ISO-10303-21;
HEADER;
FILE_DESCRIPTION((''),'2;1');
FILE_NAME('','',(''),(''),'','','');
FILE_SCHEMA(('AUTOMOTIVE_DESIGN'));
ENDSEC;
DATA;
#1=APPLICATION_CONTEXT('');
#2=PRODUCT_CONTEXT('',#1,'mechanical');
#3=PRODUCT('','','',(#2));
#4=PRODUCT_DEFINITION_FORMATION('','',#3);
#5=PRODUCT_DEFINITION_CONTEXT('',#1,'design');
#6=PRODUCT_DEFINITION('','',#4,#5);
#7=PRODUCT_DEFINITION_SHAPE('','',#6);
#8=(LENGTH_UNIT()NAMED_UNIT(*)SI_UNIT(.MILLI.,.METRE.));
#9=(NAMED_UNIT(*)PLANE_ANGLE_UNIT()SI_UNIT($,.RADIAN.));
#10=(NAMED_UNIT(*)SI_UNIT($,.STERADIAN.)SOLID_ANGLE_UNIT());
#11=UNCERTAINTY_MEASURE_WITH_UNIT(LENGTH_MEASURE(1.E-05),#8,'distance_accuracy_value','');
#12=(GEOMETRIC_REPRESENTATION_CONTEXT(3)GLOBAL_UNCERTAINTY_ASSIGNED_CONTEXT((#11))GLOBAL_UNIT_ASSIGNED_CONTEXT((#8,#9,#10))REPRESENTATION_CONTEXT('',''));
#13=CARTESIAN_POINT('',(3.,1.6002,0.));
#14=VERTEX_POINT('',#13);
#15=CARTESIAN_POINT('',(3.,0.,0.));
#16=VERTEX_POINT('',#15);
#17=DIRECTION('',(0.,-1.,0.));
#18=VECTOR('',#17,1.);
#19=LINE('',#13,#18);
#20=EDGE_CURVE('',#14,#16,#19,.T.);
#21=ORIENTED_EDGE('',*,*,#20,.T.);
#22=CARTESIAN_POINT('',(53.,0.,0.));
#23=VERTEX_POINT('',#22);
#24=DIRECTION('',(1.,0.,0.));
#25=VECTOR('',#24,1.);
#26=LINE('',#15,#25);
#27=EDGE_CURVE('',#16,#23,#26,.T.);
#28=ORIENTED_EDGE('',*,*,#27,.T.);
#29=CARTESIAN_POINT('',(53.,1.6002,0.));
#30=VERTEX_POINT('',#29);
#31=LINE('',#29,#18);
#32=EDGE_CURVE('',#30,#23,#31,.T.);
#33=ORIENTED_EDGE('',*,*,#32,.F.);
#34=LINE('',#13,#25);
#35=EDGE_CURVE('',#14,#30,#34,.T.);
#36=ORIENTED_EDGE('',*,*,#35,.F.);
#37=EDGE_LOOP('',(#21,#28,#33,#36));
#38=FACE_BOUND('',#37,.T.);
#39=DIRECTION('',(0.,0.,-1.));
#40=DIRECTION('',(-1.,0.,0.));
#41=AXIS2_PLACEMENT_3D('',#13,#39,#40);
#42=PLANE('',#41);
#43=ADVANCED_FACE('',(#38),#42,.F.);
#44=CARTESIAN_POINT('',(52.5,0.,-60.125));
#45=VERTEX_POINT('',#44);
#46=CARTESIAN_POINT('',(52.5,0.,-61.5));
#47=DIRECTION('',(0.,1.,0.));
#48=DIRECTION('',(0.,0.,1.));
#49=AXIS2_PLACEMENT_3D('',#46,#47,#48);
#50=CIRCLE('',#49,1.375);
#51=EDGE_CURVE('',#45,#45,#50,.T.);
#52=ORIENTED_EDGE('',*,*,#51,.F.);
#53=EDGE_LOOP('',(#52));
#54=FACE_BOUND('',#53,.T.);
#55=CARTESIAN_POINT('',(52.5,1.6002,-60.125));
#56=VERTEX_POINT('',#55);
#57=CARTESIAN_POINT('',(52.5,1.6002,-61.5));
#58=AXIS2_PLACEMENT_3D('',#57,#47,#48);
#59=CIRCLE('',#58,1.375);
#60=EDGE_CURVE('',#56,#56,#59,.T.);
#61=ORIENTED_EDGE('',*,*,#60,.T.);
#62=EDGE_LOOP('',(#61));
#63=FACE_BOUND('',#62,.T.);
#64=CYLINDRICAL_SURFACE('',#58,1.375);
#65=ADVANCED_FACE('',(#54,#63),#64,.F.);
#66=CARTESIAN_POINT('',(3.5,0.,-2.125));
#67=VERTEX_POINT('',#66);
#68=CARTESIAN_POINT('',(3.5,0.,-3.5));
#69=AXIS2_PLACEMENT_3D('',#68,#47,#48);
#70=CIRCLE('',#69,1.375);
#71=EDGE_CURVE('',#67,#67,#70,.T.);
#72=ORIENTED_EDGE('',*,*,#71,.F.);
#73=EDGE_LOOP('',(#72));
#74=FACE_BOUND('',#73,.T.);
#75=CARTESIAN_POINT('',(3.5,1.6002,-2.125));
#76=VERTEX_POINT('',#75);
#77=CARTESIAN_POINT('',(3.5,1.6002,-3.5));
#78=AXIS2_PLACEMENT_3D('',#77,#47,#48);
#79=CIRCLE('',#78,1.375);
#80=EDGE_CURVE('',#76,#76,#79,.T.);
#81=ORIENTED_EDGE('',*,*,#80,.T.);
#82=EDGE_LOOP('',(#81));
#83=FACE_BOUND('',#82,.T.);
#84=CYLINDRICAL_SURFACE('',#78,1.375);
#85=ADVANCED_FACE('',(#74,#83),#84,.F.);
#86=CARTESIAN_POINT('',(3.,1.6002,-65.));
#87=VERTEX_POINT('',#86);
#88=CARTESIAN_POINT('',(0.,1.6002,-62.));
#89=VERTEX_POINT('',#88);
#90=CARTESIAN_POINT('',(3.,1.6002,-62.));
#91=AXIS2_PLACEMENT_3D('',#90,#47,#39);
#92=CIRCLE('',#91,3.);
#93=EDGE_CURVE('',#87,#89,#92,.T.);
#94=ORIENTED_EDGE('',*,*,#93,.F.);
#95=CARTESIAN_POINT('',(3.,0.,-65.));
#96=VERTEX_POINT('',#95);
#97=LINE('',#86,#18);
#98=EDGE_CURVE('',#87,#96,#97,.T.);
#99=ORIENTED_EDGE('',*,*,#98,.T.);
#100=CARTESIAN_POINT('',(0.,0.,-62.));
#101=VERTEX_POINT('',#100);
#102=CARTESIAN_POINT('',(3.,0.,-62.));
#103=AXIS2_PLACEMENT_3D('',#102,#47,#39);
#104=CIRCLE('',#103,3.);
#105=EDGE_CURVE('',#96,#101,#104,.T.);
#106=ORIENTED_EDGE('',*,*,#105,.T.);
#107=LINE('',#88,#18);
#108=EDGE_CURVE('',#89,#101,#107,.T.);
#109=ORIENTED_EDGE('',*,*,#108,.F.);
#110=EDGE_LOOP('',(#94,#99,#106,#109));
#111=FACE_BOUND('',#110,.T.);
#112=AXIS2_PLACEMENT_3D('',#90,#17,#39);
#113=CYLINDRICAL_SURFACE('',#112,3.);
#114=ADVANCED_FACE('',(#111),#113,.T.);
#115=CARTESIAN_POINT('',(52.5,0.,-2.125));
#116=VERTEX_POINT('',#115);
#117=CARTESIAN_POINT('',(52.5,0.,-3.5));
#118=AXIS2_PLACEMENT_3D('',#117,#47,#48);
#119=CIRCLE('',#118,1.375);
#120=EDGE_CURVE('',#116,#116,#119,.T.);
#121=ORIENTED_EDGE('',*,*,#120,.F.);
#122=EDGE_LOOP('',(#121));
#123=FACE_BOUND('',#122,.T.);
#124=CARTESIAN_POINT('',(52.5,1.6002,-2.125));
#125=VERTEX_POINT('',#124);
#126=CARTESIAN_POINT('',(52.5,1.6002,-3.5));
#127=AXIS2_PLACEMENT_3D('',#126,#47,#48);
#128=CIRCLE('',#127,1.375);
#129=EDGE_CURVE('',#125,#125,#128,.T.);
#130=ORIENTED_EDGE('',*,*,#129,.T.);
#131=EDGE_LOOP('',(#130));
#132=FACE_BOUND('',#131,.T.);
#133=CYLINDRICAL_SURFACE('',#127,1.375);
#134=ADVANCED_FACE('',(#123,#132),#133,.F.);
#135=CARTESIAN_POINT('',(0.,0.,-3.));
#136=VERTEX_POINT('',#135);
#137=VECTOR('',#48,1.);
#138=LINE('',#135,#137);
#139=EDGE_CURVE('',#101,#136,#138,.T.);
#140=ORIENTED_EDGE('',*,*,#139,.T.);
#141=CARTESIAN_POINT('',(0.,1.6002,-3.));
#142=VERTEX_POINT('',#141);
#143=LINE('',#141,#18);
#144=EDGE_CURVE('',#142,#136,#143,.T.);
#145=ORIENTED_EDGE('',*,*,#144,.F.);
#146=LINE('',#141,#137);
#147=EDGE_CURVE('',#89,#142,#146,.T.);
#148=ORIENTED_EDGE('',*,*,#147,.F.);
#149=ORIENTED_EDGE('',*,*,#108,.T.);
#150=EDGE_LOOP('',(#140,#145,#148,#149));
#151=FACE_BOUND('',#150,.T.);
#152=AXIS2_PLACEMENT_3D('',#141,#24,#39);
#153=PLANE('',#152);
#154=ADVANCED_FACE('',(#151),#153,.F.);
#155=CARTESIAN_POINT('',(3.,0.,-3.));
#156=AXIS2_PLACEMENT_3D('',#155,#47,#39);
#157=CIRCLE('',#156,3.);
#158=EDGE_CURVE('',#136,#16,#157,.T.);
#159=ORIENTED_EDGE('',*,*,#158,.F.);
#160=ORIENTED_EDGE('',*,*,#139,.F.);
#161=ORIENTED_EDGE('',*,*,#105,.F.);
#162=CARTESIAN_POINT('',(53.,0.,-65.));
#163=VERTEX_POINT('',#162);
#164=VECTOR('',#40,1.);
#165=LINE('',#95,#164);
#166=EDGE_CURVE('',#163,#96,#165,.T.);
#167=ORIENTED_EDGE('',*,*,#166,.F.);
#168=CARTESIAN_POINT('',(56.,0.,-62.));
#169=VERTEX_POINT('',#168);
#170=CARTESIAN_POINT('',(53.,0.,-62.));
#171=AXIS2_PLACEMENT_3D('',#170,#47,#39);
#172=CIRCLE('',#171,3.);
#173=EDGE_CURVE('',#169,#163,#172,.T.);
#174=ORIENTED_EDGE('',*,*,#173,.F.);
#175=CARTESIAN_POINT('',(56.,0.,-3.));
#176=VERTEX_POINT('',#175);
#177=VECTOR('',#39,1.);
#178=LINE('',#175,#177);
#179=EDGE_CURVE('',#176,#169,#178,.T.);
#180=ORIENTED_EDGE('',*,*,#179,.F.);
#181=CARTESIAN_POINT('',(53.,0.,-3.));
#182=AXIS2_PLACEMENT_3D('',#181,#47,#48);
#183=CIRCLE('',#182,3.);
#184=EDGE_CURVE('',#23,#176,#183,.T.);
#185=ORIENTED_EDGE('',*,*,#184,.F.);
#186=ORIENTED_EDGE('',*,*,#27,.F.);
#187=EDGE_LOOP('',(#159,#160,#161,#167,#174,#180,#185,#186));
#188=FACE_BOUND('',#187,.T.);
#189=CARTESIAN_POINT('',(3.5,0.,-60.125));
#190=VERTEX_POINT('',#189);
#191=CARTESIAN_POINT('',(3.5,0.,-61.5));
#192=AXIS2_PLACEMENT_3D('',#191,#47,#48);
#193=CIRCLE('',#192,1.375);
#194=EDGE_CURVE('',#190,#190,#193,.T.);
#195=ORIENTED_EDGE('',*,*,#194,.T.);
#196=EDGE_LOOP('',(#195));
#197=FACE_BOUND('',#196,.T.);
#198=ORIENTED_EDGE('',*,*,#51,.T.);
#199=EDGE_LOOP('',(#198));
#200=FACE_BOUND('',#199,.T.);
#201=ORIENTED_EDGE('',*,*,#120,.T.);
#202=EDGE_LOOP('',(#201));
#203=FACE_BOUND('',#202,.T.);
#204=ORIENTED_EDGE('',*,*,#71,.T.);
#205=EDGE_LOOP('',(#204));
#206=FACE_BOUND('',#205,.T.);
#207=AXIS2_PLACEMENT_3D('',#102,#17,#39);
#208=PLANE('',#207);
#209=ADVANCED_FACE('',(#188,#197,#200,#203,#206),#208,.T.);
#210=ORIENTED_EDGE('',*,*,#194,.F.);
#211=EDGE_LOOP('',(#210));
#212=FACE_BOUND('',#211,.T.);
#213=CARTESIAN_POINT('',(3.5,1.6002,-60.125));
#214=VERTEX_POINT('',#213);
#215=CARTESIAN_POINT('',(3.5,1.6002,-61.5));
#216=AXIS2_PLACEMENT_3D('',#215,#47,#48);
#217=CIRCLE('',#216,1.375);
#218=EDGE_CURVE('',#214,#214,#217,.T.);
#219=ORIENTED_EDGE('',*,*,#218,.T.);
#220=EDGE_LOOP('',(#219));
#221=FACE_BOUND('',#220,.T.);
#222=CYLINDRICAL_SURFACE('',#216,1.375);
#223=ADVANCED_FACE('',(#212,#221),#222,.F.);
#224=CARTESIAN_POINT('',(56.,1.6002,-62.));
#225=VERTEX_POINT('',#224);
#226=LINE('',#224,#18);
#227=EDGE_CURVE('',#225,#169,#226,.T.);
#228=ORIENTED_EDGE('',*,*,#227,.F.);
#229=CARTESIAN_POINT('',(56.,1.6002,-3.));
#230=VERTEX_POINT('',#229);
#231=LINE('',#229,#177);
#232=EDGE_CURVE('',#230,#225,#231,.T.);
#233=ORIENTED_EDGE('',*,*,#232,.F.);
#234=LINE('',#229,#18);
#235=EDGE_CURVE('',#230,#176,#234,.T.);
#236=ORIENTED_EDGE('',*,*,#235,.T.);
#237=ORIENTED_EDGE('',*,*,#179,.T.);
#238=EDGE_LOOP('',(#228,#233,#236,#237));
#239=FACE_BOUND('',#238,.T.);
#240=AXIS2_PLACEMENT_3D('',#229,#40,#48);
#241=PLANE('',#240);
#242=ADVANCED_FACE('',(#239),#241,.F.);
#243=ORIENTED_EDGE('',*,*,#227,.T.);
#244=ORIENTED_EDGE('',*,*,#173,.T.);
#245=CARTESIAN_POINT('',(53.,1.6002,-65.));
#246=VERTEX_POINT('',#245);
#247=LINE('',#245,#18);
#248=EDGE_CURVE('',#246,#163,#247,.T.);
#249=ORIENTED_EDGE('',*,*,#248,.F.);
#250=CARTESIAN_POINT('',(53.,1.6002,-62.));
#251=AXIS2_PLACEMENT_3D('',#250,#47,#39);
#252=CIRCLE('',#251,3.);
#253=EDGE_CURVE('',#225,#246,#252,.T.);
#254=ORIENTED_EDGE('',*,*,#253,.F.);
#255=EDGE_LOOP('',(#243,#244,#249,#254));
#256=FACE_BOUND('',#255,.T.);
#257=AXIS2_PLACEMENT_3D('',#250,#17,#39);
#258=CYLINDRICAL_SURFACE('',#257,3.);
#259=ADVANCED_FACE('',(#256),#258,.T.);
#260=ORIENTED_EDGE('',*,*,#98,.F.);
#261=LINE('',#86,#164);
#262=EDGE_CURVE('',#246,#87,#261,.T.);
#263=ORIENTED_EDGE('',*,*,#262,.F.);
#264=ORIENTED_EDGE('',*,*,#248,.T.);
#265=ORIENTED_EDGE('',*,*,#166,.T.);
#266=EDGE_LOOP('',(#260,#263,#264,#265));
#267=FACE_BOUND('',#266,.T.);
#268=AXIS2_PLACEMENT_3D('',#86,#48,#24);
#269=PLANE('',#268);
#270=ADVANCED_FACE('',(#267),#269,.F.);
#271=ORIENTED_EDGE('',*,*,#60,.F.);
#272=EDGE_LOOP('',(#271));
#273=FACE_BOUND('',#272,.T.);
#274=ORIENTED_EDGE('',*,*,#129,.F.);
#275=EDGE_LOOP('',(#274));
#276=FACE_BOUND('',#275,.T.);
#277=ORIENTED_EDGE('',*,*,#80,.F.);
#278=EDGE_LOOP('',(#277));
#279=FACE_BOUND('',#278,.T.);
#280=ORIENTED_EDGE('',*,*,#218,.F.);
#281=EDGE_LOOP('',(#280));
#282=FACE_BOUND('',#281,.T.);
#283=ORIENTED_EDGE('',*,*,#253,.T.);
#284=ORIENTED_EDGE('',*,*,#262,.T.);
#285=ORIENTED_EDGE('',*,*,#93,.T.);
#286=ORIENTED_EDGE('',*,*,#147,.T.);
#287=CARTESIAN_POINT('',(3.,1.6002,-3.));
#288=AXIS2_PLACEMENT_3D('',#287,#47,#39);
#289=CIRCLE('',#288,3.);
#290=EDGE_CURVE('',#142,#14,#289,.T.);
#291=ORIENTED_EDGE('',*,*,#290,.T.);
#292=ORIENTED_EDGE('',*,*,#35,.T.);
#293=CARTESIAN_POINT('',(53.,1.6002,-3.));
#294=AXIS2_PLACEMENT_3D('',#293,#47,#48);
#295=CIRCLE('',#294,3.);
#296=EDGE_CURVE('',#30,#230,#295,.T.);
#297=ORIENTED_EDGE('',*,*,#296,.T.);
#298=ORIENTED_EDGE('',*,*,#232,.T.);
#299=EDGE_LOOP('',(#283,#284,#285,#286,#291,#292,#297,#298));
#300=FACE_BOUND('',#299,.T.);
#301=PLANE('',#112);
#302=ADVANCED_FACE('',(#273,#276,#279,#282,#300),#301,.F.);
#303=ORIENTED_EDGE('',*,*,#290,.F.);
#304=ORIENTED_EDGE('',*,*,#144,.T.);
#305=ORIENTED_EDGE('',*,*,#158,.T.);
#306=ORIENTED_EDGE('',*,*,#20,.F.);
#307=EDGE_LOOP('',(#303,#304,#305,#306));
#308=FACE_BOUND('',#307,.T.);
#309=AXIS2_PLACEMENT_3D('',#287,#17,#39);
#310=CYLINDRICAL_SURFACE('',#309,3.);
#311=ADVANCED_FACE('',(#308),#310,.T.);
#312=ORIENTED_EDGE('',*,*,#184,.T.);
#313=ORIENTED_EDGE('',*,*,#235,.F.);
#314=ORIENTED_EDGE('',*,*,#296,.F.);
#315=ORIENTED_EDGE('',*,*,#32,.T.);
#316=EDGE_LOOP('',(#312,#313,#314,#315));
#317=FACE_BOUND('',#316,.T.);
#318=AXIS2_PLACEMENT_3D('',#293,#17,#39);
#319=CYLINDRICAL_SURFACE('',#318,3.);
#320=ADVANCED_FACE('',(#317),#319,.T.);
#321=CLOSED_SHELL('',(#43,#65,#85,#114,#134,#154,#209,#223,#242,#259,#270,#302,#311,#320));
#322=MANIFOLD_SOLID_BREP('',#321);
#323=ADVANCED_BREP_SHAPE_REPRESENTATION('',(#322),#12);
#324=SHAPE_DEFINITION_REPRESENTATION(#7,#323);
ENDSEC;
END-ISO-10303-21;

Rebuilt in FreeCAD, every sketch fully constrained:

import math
import FreeCAD as App
import Part
import Sketcher

V = App.Vector

doc = App.newDocument("Part")
params = doc.addObject("Spreadsheet::Sheet", "Params")
for row, (alias, value) in enumerate([
    ("sketch1_radius", "3 mm"),
    ("sketch1_width", "50 mm"),
    ("sketch1_height", "59 mm"),
    ("pad1_length", "1.6002 mm"),
    ("sketch2_diameter", "2.75 mm"),
    ("hole_diameter", "2.75 mm"),
], start=1):
    params.set(f"A{row}", alias)
    params.set(f"B{row}", "=" + value)
    params.setAlias(f"B{row}", alias)

body = doc.addObject("PartDesign::Body", "Body")

sketch1 = doc.addObject("Sketcher::SketchObject", "Sketch")
body.addObject(sketch1)
sketch1.AttachmentSupport = (doc.XZ_Plane, [""])
sketch1.MapMode = "FlatFace"
sketch1.addGeometry([
    Part.LineSegment(V(3, 0, 0), V(53, 0, 0)),
    Part.ArcOfCircle(Part.Circle(V(53, -3, 0), V(0, 0, 1), 3), math.radians(0), math.radians(90)),
    Part.LineSegment(V(56, -3, 0), V(56, -62, 0)),
    Part.ArcOfCircle(Part.Circle(V(53, -62, 0), V(0, 0, 1), 3), math.radians(-90), math.radians(0)),
    Part.LineSegment(V(53, -65, 0), V(3, -65, 0)),
    Part.ArcOfCircle(Part.Circle(V(3, -62, 0), V(0, 0, 1), 3), math.radians(180), math.radians(270)),
    Part.LineSegment(V(0, -62, 0), V(0, -3, 0)),
    Part.ArcOfCircle(Part.Circle(V(3, -3, 0), V(0, 0, 1), 3), math.radians(90), math.radians(180)),
], False)
sketch1.addConstraint([
    Sketcher.Constraint("Tangent", 0, 2, 1, 2),
    Sketcher.Constraint("Tangent", 1, 1, 2, 1),
    Sketcher.Constraint("Tangent", 2, 2, 3, 2),
    Sketcher.Constraint("Tangent", 3, 1, 4, 1),
    Sketcher.Constraint("Tangent", 4, 2, 5, 2),
    Sketcher.Constraint("Tangent", 5, 1, 6, 1),
    Sketcher.Constraint("Tangent", 6, 2, 7, 2),
    Sketcher.Constraint("Tangent", 7, 1, 0, 1),
    Sketcher.Constraint("Horizontal", 0),
    Sketcher.Constraint("Vertical", 2),
    Sketcher.Constraint("Horizontal", 4),
    Sketcher.Constraint("Vertical", 6),
    Sketcher.Constraint("Equal", 1, 3),
    Sketcher.Constraint("Equal", 3, 5),
    Sketcher.Constraint("Equal", 5, 7),
    Sketcher.Constraint("PointOnObject", 0, 2, -1),
    Sketcher.Constraint("PointOnObject", 5, 1, -2),
    Sketcher.Constraint("Radius", 1, 3.0),
    Sketcher.Constraint("DistanceX", 0, 1, 0, 2, 50.0),
    Sketcher.Constraint("DistanceY", 2, 2, 2, 1, 59.0),
])
sketch1.setExpression("Constraints[17]", "Params.sketch1_radius")
sketch1.setExpression("Constraints[18]", "Params.sketch1_width")
sketch1.setExpression("Constraints[19]", "Params.sketch1_height")
pad1 = doc.addObject("PartDesign::Pad", "Pad")
body.addObject(pad1)
pad1.Profile = sketch1
pad1.setExpression("Length", "Params.pad1_length")
pad1.Reversed = True

sketch2 = doc.addObject("Sketcher::SketchObject", "Sketch001")
body.addObject(sketch2)
sketch2.AttachmentSupport = (doc.XZ_Plane, [""])
sketch2.MapMode = "FlatFace"
sketch2.AttachmentOffset = App.Placement(V(0, 0, -1.6002), App.Rotation())
sketch2.addGeometry([
    Part.Circle(V(3.5, -61.5, 0), V(0, 0, 1), 1.4),
    Part.Circle(V(3.5, -3.5, 0), V(0, 0, 1), 1.4),
    Part.Circle(V(52.5, -61.5, 0), V(0, 0, 1), 1.4),
    Part.Circle(V(52.5, -3.5, 0), V(0, 0, 1), 1.4),
], False)
sketch2.addConstraint([
    Sketcher.Constraint("Equal", 0, 1),
    Sketcher.Constraint("Equal", 1, 2),
    Sketcher.Constraint("Equal", 2, 3),
    Sketcher.Constraint("Horizontal", 0, 3, 2, 3),
    Sketcher.Constraint("Horizontal", 1, 3, 3, 3),
    Sketcher.Constraint("Vertical", 0, 3, 1, 3),
    Sketcher.Constraint("Vertical", 2, 3, 3, 3),
    Sketcher.Constraint("Diameter", 0, 2.75),
    Sketcher.Constraint("DistanceY", 0, 3, 1, 3, 58.0),
    Sketcher.Constraint("DistanceX", 0, 3, 2, 3, 49.0),
    Sketcher.Constraint("DistanceX", -1, 1, 0, 3, 3.5),
    Sketcher.Constraint("DistanceY", 0, 3, -1, 1, 61.5),
])
sketch2.setExpression("Constraints[7]", "Params.sketch2_diameter")
doc.recompute()
hole = doc.addObject("PartDesign::Hole", "Hole")
body.addObject(hole)
hole.Profile = sketch2
hole.ThreadType = "None"
hole.setExpression("Diameter", "Params.hole_diameter")
hole.DepthType = "ThroughAll"
hole.Reversed = True

doc.recompute()
